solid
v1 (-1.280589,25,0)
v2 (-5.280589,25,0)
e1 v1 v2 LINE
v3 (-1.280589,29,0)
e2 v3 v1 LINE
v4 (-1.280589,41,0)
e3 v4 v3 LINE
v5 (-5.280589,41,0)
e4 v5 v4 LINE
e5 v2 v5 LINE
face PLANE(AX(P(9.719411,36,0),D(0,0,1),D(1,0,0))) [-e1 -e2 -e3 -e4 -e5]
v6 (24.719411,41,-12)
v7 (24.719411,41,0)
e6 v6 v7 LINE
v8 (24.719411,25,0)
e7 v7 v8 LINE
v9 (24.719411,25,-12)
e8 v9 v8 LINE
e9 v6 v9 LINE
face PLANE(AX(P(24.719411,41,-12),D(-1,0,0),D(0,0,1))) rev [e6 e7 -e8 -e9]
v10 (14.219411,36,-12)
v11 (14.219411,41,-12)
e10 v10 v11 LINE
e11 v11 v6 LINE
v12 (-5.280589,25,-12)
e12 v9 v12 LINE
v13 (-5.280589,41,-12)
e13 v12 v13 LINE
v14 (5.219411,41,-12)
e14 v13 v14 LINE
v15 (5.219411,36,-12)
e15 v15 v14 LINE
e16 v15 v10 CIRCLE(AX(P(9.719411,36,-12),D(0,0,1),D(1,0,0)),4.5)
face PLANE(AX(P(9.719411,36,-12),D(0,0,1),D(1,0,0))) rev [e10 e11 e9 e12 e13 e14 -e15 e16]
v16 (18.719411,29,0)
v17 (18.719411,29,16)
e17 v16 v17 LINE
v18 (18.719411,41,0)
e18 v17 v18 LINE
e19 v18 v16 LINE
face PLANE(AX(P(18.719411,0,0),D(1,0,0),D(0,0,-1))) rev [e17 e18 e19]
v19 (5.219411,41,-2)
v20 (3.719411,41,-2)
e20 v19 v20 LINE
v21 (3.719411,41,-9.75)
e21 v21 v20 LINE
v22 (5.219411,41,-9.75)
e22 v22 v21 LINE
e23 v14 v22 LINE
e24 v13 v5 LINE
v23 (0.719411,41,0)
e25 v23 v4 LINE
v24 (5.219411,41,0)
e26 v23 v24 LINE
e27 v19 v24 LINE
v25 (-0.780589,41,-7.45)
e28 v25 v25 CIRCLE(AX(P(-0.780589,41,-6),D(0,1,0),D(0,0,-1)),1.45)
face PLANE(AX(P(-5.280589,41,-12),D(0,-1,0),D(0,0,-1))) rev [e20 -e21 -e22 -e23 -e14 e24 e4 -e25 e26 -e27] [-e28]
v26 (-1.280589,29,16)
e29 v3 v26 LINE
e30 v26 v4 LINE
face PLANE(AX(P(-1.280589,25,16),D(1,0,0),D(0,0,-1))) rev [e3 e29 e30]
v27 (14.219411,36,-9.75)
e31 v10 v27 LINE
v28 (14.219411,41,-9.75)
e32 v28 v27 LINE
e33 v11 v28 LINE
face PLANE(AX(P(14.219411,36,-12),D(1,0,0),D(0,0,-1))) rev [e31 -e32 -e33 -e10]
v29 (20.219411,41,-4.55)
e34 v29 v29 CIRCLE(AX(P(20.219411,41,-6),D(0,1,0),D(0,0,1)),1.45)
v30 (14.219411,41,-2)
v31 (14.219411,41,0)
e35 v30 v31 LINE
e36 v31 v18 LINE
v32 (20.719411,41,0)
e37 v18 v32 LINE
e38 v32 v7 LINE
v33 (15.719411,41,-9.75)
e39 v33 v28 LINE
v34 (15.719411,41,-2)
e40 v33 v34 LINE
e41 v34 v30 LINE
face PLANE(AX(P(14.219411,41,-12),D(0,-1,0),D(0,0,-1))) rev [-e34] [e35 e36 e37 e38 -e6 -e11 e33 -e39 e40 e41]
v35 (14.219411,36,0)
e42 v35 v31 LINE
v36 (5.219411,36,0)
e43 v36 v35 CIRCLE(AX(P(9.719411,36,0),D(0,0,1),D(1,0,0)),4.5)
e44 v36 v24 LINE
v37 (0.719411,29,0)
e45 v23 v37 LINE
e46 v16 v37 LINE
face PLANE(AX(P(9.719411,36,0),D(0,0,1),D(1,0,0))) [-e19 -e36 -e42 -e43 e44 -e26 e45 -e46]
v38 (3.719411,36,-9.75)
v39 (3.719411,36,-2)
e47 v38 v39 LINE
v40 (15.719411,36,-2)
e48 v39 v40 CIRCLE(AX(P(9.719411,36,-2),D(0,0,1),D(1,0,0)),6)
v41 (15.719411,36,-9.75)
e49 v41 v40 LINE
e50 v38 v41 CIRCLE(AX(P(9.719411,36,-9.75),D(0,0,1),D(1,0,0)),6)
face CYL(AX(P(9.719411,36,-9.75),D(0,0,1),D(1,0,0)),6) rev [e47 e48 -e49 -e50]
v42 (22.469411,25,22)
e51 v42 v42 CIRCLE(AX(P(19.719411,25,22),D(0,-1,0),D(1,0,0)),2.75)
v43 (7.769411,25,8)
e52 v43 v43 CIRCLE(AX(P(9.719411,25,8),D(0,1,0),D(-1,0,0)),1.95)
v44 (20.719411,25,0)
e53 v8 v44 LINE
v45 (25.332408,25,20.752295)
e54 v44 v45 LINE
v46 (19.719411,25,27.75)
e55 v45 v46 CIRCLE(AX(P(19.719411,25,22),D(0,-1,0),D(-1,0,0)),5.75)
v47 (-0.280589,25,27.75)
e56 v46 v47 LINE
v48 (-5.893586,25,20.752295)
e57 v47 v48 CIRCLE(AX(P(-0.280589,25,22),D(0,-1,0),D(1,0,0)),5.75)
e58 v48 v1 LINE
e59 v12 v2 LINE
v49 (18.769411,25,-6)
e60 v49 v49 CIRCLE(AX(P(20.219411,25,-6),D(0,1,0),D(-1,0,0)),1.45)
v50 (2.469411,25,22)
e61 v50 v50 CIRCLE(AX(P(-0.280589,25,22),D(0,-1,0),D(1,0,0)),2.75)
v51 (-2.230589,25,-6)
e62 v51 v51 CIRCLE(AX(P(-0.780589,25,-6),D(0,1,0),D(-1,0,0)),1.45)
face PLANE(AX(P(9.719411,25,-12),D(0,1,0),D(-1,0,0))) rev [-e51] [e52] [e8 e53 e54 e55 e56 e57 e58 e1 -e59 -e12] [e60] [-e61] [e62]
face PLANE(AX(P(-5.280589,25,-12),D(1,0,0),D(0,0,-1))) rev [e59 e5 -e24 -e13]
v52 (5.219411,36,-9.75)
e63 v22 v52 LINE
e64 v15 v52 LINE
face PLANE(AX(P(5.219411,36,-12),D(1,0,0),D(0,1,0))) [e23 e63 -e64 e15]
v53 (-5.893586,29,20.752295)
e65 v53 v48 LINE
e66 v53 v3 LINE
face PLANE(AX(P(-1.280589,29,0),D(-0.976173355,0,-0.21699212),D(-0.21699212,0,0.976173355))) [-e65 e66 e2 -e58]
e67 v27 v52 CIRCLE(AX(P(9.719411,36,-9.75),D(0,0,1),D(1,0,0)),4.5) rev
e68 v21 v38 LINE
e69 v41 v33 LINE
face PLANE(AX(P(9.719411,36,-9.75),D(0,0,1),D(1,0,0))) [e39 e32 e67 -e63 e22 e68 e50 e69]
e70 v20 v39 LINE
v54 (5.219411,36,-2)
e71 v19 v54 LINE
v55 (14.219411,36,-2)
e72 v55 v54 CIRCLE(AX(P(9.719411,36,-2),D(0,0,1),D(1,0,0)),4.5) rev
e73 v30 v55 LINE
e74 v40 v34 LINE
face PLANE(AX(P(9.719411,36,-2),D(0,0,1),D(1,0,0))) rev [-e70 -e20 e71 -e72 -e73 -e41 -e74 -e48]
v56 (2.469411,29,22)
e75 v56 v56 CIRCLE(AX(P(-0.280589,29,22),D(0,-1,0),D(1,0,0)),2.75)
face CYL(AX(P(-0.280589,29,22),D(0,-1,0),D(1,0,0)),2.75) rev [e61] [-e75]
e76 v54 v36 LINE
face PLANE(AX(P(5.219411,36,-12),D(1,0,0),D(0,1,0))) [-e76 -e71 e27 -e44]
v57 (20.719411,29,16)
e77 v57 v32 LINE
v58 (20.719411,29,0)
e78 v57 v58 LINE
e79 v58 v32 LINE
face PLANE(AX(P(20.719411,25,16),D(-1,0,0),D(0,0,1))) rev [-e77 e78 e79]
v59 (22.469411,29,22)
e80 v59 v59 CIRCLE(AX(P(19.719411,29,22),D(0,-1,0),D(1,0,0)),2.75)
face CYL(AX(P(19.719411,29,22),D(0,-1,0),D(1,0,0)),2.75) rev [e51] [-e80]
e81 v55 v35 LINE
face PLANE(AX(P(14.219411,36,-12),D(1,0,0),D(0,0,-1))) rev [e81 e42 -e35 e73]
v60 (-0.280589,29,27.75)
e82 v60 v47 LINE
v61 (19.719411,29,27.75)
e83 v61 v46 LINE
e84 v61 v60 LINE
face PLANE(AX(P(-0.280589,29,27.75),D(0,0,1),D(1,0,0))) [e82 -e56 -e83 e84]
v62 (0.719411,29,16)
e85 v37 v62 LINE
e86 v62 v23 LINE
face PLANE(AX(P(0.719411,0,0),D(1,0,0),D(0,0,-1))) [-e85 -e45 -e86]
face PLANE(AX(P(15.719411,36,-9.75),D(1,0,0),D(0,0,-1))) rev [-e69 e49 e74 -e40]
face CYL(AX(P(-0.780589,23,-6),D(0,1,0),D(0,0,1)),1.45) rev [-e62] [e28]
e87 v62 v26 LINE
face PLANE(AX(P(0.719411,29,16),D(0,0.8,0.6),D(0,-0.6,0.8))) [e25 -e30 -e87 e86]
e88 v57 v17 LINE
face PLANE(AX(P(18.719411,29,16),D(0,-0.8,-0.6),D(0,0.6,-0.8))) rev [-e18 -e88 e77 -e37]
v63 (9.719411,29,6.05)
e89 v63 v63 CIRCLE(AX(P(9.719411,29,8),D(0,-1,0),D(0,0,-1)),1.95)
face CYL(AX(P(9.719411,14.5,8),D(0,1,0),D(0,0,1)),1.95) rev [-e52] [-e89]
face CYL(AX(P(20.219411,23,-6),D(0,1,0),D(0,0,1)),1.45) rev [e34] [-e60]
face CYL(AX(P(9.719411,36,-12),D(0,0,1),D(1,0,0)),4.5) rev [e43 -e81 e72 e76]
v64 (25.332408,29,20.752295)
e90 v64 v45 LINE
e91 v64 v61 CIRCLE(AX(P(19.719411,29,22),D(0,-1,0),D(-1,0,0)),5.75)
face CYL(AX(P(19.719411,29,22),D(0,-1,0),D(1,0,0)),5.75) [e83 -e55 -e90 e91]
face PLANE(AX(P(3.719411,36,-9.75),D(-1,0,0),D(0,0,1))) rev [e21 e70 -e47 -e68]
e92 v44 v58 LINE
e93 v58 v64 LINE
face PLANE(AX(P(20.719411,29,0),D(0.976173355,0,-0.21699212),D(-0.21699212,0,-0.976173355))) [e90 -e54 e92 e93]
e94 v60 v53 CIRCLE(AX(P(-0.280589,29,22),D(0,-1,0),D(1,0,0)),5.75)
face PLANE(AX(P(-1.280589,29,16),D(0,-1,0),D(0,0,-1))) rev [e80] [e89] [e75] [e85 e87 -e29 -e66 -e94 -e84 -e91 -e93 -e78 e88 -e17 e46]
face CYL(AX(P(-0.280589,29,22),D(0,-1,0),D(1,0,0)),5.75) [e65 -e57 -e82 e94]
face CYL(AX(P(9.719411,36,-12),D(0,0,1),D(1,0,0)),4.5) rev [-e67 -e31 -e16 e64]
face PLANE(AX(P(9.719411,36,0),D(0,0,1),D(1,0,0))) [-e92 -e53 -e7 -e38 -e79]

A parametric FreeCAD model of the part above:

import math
import FreeCAD as App
import Part
import Sketcher
from FreeCAD import Vector
Q = App.Units.Quantity

doc = App.newDocument("Part")
body = doc.addObject("PartDesign::Body", "Body")

# Sketch on XY plane
sketch1 = doc.addObject("Sketcher::SketchObject", "Sketch")
body.addObject(sketch1)
sketch1.AttachmentSupport = (doc.XY_Plane, [""])
sketch1.MapMode = "FlatFace"
sketch1.addGeometry([
    Part.LineSegment(Vector(-5.3, 41, 0), Vector(-5.3, 25, 0)),  # 0
    Part.LineSegment(Vector(-5.3, 25, 0), Vector(24.7, 25, 0)),  # 1
    Part.LineSegment(Vector(24.7, 25, 0), Vector(24.7, 41, 0)),  # 2
    Part.LineSegment(Vector(24.7, 41, 0), Vector(14.2, 41, 0)),  # 3
    Part.LineSegment(Vector(14.2, 41, 0), Vector(14.2, 36, 0)),  # 4
    Part.ArcOfCircle(Part.Circle(Vector(9.7, 36, 0), Vector(0, 0, 1), 4.5), math.radians(180), math.radians(360)),  # 5
    Part.LineSegment(Vector(5.2, 36, 0), Vector(5.2, 41, 0)),  # 6
    Part.LineSegment(Vector(5.2, 41, 0), Vector(-5.3, 41, 0)),  # 7
], False)
sketch1.addConstraint([
    Sketcher.Constraint("Coincident", 0, 2, 1, 1),
    Sketcher.Constraint("Coincident", 1, 2, 2, 1),
    Sketcher.Constraint("Coincident", 2, 2, 3, 1),
    Sketcher.Constraint("Coincident", 3, 2, 4, 1),
    Sketcher.Constraint("Tangent", 4, 2, 5, 2),
    Sketcher.Constraint("Tangent", 5, 1, 6, 1),
    Sketcher.Constraint("Coincident", 6, 2, 7, 1),
    Sketcher.Constraint("Coincident", 7, 2, 0, 1),
    Sketcher.Constraint("Vertical", 0),
    Sketcher.Constraint("Horizontal", 1),
    Sketcher.Constraint("Vertical", 2),
    Sketcher.Constraint("Horizontal", 3),
    Sketcher.Constraint("Vertical", 4),
    Sketcher.Constraint("Vertical", 6),
    Sketcher.Constraint("Horizontal", 7),
    Sketcher.Constraint("Horizontal", 3, 2, 6, 2),
    Sketcher.Constraint("Equal", 3, 7),
    Sketcher.Constraint("Radius", 5, Q("4.5 mm")),
    Sketcher.Constraint("DistanceX", 1, 1, 1, 2, Q("30 mm")),
    Sketcher.Constraint("DistanceY", 0, 2, 0, 1, Q("16 mm")),
    Sketcher.Constraint("DistanceY", 4, 2, 4, 1, Q("5 mm")),
    Sketcher.Constraint("DistanceY", -1, 1, 5, 3, Q("36 mm")),
    Sketcher.Constraint("DistanceX", -1, 1, 5, 3, Q("9.719411 mm")),
])
pad1 = doc.addObject("PartDesign::Pad", "Pad")
body.addObject(pad1)
pad1.Profile = sketch1
pad1.Length = 12
pad1.Reversed = True

# Sketch on XY plane
sketch2 = doc.addObject("Sketcher::SketchObject", "Sketch001")
body.addObject(sketch2)
sketch2.AttachmentSupport = (doc.XY_Plane, [""])
sketch2.MapMode = "FlatFace"
sketch2.AttachmentOffset = App.Placement(Vector(0, 0, -2), App.Rotation())
sketch2.addGeometry([
    Part.LineSegment(Vector(4, 41, 0), Vector(4, 36, 0)),
    Part.ArcOfCircle(Part.Circle(Vector(10, 36, 0), Vector(0, 0, 1), 6), math.radians(180), math.radians(360)),
    Part.LineSegment(Vector(16, 36, 0), Vector(16, 41, 0)),
    Part.LineSegment(Vector(16, 41, 0), Vector(4, 41, 0)),
], False)
sketch2.addConstraint([
    Sketcher.Constraint("Tangent", 0, 2, 1, 1),
    Sketcher.Constraint("Tangent", 1, 2, 2, 1),
    Sketcher.Constraint("Coincident", 2, 2, 3, 1),
    Sketcher.Constraint("Coincident", 3, 2, 0, 1),
    Sketcher.Constraint("Vertical", 0),
    Sketcher.Constraint("Vertical", 2),
    Sketcher.Constraint("Horizontal", 3),
    Sketcher.Constraint("Radius", 1, Q("6 mm")),
    Sketcher.Constraint("DistanceY", 0, 2, 0, 1, Q("5 mm")),
    Sketcher.Constraint("DistanceY", -1, 1, 1, 3, Q("36 mm")),
    Sketcher.Constraint("DistanceX", -1, 1, 1, 3, Q("9.719411 mm")),
])
pocket1 = doc.addObject("PartDesign::Pocket", "Pocket")
body.addObject(pocket1)
pocket1.Profile = sketch2
pocket1.Length = 7.75

# Sketch on XZ plane
sketch3 = doc.addObject("Sketcher::SketchObject", "Sketch002")
body.addObject(sketch3)
sketch3.AttachmentSupport = (doc.XZ_Plane, [""])
sketch3.MapMode = "FlatFace"
sketch3.AttachmentOffset = App.Placement(Vector(0, 0, -41), App.Rotation())
sketch3.addGeometry([
    Part.Circle(Vector(20.2, -6, 0), Vector(0, 0, 1), 1.4),
    Part.Circle(Vector(-0.8, -6, 0), Vector(0, 0, 1), 1.4),
], False)
sketch3.addConstraint([
    Sketcher.Constraint("Equal", 0, 1),
    Sketcher.Constraint("Horizontal", 0, 3, 1, 3),
    Sketcher.Constraint("Diameter", 0, Q("2.9 mm")),
    Sketcher.Constraint("DistanceY", 0, 3, -1, 1, Q("6 mm")),
    Sketcher.Constraint("DistanceX", 1, 3, 0, 3, Q("21 mm")),
    Sketcher.Constraint("DistanceX", -1, 1, 0, 3, Q("20.219411 mm")),
])
pocket2 = doc.addObject("PartDesign::Pocket", "Pocket001")
body.addObject(pocket2)
pocket2.Profile = sketch3
pocket2.Length = 18
pocket2.Reversed = True

# Sketch on XY plane
sketch4 = doc.addObject("Sketcher::SketchObject", "Sketch003")
body.addObject(sketch4)
sketch4.AttachmentSupport = (doc.XY_Plane, [""])
sketch4.MapMode = "FlatFace"
sketch4.addGeometry([
    Part.LineSegment(Vector(-1.3, 29, 0), Vector(-1.3, 25, 0)),
    Part.LineSegment(Vector(-1.3, 25, 0), Vector(20.7, 25, 0)),
    Part.LineSegment(Vector(20.7, 25, 0), Vector(20.7, 29, 0)),
    Part.LineSegment(Vector(20.7, 29, 0), Vector(-1.3, 29, 0)),
], False)
sketch4.addConstraint([
    Sketcher.Constraint("Coincident", 0, 2, 1, 1),
    Sketcher.Constraint("Coincident", 1, 2, 2, 1),
    Sketcher.Constraint("Coincident", 2, 2, 3, 1),
    Sketcher.Constraint("Coincident", 3, 2, 0, 1),
    Sketcher.Constraint("Vertical", 0),
    Sketcher.Constraint("Horizontal", 1),
    Sketcher.Constraint("Vertical", 2),
    Sketcher.Constraint("Horizontal", 3),
    Sketcher.Constraint("DistanceX", 1, 1, 1, 2, Q("22 mm")),
    Sketcher.Constraint("DistanceY", 0, 2, 0, 1, Q("4 mm")),
    Sketcher.Constraint("DistanceY", -1, 1, 0, 2, Q("25 mm")),
    Sketcher.Constraint("DistanceX", 0, 2, -1, 1, Q("1.280589 mm")),
])
pad2 = doc.addObject("PartDesign::Pad", "Pad001")
body.addObject(pad2)
pad2.Profile = sketch4
pad2.Length = 16

# Sketch on XZ plane
sketch5 = doc.addObject("Sketcher::SketchObject", "Sketch004")
body.addObject(sketch5)
sketch5.AttachmentSupport = (doc.XZ_Plane, [""])
sketch5.MapMode = "FlatFace"
sketch5.AttachmentOffset = App.Placement(Vector(0, 0, -29), App.Rotation())
sketch5.addGeometry(Part.Circle(Vector(9.7, 8, 0), Vector(0, 0, 1), 1.9), False)
sketch5.addConstraint([
    Sketcher.Constraint("Diameter", 0, Q("3.9 mm")),
    Sketcher.Constraint("DistanceY", -1, 1, 0, 3, Q("8 mm")),
    Sketcher.Constraint("DistanceX", -1, 1, 0, 3, Q("9.719411 mm")),
])
pocket3 = doc.addObject("PartDesign::Pocket", "Pocket002")
body.addObject(pocket3)
pocket3.Profile = sketch5
pocket3.Length = 29
pocket3.Midplane = True

# Sketch on YZ plane
sketch6 = doc.addObject("Sketcher::SketchObject", "Sketch005")
body.addObject(sketch6)
sketch6.AttachmentSupport = (doc.YZ_Plane, [""])
sketch6.MapMode = "FlatFace"
sketch6.AttachmentOffset = App.Placement(Vector(0, 0, -1.280589), App.Rotation())
sketch6.addGeometry([
    Part.LineSegment(Vector(29, 16, 0), Vector(41, 0, 0)),
    Part.LineSegment(Vector(41, 0, 0), Vector(29, 0, 0)),
    Part.LineSegment(Vector(29, 0, 0), Vector(29, 16, 0)),
], False)
sketch6.addConstraint([
    Sketcher.Constraint("Coincident", 0, 2, 1, 1),
    Sketcher.Constraint("Coincident", 1, 2, 2, 1),
    Sketcher.Constraint("Coincident", 2, 2, 0, 1),
    Sketcher.Constraint("Horizontal", 1),
    Sketcher.Constraint("Vertical", 2),
    Sketcher.Constraint("PointOnObject", 0, 2, -1),
    Sketcher.Constraint("DistanceX", 1, 2, 1, 1, Q("12 mm")),
    Sketcher.Constraint("DistanceY", 2, 1, 2, 2, Q("16 mm")),
    Sketcher.Constraint("DistanceX", -1, 1, 0, 2, Q("41 mm")),
])
pad3 = doc.addObject("PartDesign::Pad", "Pad002")
body.addObject(pad3)
pad3.Profile = sketch6
pad3.Length = 2

# Sketch on YZ plane
sketch7 = doc.addObject("Sketcher::SketchObject", "Sketch006")
body.addObject(sketch7)
sketch7.AttachmentSupport = (doc.YZ_Plane, [""])
sketch7.MapMode = "FlatFace"
sketch7.AttachmentOffset = App.Placement(Vector(0, 0, 20.719411), App.Rotation())
sketch7.addGeometry([
    Part.LineSegment(Vector(29, 16, 0), Vector(41, 0, 0)),
    Part.LineSegment(Vector(41, 0, 0), Vector(29, 0, 0)),
    Part.LineSegment(Vector(29, 0, 0), Vector(29, 16, 0)),
], False)
sketch7.addConstraint([
    Sketcher.Constraint("Coincident", 0, 2, 1, 1),
    Sketcher.Constraint("Coincident", 1, 2, 2, 1),
    Sketcher.Constraint("Coincident", 2, 2, 0, 1),
    Sketcher.Constraint("Horizontal", 1),
    Sketcher.Constraint("Vertical", 2),
    Sketcher.Constraint("PointOnObject", 0, 2, -1),
    Sketcher.Constraint("DistanceX", 1, 2, 1, 1, Q("12 mm")),
    Sketcher.Constraint("DistanceY", 2, 1, 2, 2, Q("16 mm")),
    Sketcher.Constraint("DistanceX", -1, 1, 0, 2, Q("41 mm")),
])
pad4 = doc.addObject("PartDesign::Pad", "Pad003")
body.addObject(pad4)
pad4.Profile = sketch7
pad4.Length = 2
pad4.Reversed = True

# Sketch on XZ plane
sketch8 = doc.addObject("Sketcher::SketchObject", "Sketch007")
body.addObject(sketch8)
sketch8.AttachmentSupport = (doc.XZ_Plane, [""])
sketch8.MapMode = "FlatFace"
sketch8.AttachmentOffset = App.Placement(Vector(0, 0, -25), App.Rotation())
sketch8.addGeometry([
    Part.LineSegment(Vector(-5.9, 20.8, 0), Vector(-1.3, 0, 0)),  # 0
    Part.LineSegment(Vector(-1.3, 0, 0), Vector(-1.3, 16, 0)),  # 1
    Part.LineSegment(Vector(-1.3, 16, 0), Vector(20.7, 16, 0)),  # 2
    Part.LineSegment(Vector(20.7, 16, 0), Vector(20.7, 0, 0)),  # 3
    Part.LineSegment(Vector(20.7, 0, 0), Vector(25.3, 20.8, 0)),  # 4
    Part.ArcOfCircle(Part.Circle(Vector(19.7, 22, 0), Vector(0, 0, 1), 5.7), math.radians(-13), math.radians(90)),  # 5
    Part.LineSegment(Vector(19.7, 27.8, 0), Vector(-0.3, 27.8, 0)),  # 6
    Part.ArcOfCircle(Part.Circle(Vector(-0.3, 22, 0), Vector(0, 0, 1), 5.8), math.radians(90), math.radians(193)),  # 7
    Part.Circle(Vector(-0.3, 22, 0), Vector(0, 0, 1), 2.8),  # 8
    Part.Circle(Vector(19.7, 22, 0), Vector(0, 0, 1), 2.8),  # 9
], False)
sketch8.addConstraint([
    Sketcher.Constraint("Coincident", 0, 2, 1, 1),
    Sketcher.Constraint("Coincident", 1, 2, 2, 1),
    Sketcher.Constraint("Coincident", 2, 2, 3, 1),
    Sketcher.Constraint("Coincident", 3, 2, 4, 1),
    Sketcher.Constraint("Tangent", 4, 2, 5, 1),
    Sketcher.Constraint("Tangent", 5, 2, 6, 1),
    Sketcher.Constraint("Tangent", 6, 2, 7, 1),
    Sketcher.Constraint("Tangent", 7, 2, 0, 1),
    Sketcher.Constraint("Vertical", 1),
    Sketcher.Constraint("Horizontal", 2),
    Sketcher.Constraint("Vertical", 3),
    Sketcher.Constraint("Horizontal", 6),
    Sketcher.Constraint("Coincident", 8, 3, 7, 3),
    Sketcher.Constraint("Coincident", 9, 3, 5, 3),
    Sketcher.Constraint("Equal", 5, 7),
    Sketcher.Constraint("Equal", 8, 9),
    Sketcher.Constraint("PointOnObject", 0, 2, -1),
    Sketcher.Constraint("PointOnObject", 3, 2, -1),
    Sketcher.Constraint("Horizontal", 4, 2, 7, 2),
    Sketcher.Constraint("Diameter", 8, Q("5.5 mm")),
    Sketcher.Constraint("DistanceX", 2, 1, 2, 2, Q("22 mm")),
    Sketcher.Constraint("DistanceX", 6, 2, 6, 1, Q("20 mm")),
    Sketcher.Constraint("DistanceY", 1, 1, 1, 2, Q("16 mm")),
    Sketcher.Constraint("Radius", 5, Q("5.75 mm")),
    Sketcher.Constraint("DistanceY", -1, 1, 5, 3, Q("22 mm")),
    Sketcher.Constraint("DistanceX", -1, 1, 5, 3, Q("19.719411 mm")),
])
pad5 = doc.addObject("PartDesign::Pad", "Pad004")
body.addObject(pad5)
pad5.Profile = sketch8
pad5.Length = 4
pad5.Reversed = True

doc.recompute()
